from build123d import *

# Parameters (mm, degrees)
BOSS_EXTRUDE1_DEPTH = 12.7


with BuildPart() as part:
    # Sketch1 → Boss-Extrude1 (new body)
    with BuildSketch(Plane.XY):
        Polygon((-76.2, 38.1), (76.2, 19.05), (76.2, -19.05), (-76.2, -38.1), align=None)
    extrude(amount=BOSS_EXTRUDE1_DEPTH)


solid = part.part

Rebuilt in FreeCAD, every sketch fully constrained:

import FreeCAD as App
import Part
import Sketcher
from FreeCAD import Vector
Q = App.Units.Quantity

doc = App.newDocument("Part")
body = doc.addObject("PartDesign::Body", "Body")

# Sketch on XY plane
sketch1 = body.newObject("Sketcher::SketchObject", "Sketch")
sketch1.AttachmentSupport = (doc.getObject("XY_Plane"), [""])
sketch1.MapMode = "FlatFace"
sketch1.addGeometry(Part.LineSegment(Vector(76.2, 19.05, 0), Vector(-76.2, 38.1, 0)), False)
sketch1.addGeometry(Part.LineSegment(Vector(-76.2, 38.1, 0), Vector(-76.2, -38.1, 0)), False)
sketch1.addGeometry(Part.LineSegment(Vector(-76.2, -38.1, 0), Vector(76.2, -19.05, 0)), False)
sketch1.addGeometry(Part.LineSegment(Vector(76.2, -19.05, 0), Vector(76.2, 19.05, 0)), False)
sketch1.addConstraint(Sketcher.Constraint("Coincident", 0, 2, 1, 1))
sketch1.addConstraint(Sketcher.Constraint("Coincident", 1, 2, 2, 1))
sketch1.addConstraint(Sketcher.Constraint("Coincident", 2, 2, 3, 1))
sketch1.addConstraint(Sketcher.Constraint("Coincident", 3, 2, 0, 1))
sketch1.addConstraint(Sketcher.Constraint("Vertical", 1))
sketch1.addConstraint(Sketcher.Constraint("Vertical", 3))
sketch1.addConstraint(Sketcher.Constraint("Equal", 0, 2))
sketch1.addConstraint(Sketcher.Constraint("DistanceY", 1, 2, 1, 1, Q("3 in")))
sketch1.addConstraint(Sketcher.Constraint("DistanceY", 3, 1, 3, 2, Q("1.5 in")))
sketch1.addConstraint(Sketcher.Constraint("DistanceX", 0, 2, -1, 1, Q("3 in")))
sketch1.addConstraint(Sketcher.Constraint("DistanceX", -1, 1, 2, 2, Q("3 in")))
sketch1.addConstraint(Sketcher.Constraint("DistanceY", -1, 1, 0, 2, Q("1.5 in")))
pad1 = body.newObject("PartDesign::Pad", "Pad")
pad1.Profile = sketch1
pad1.Length = Q("0.5 in")

doc.recompute()
